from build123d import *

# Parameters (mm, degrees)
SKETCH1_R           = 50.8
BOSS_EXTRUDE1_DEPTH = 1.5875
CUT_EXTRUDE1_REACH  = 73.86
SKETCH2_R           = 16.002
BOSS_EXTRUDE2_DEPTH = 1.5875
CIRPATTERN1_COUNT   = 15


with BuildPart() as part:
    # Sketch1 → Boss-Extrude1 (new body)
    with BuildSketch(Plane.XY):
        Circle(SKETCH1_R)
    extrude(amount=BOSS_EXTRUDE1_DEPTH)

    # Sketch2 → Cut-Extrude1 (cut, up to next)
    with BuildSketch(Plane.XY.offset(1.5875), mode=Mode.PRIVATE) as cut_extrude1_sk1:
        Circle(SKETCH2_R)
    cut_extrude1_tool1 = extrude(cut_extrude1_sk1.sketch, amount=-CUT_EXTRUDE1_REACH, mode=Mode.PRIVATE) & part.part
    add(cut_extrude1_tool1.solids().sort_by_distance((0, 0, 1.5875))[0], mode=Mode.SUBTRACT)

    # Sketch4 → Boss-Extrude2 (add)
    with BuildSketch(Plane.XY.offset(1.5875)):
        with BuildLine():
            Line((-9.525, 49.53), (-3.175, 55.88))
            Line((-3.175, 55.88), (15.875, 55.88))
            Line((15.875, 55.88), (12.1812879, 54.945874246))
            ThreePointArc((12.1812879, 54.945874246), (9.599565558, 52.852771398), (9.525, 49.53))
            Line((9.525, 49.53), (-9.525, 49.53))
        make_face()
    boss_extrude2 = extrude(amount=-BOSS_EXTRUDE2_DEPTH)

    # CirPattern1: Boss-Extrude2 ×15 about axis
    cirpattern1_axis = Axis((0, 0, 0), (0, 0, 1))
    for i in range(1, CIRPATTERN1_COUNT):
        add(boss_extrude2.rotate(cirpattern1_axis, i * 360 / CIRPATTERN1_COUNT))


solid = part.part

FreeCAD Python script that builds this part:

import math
import FreeCAD as App
import Part
import Sketcher

V = App.Vector
Q = App.Units.Quantity

doc = App.newDocument("Part")
body = doc.addObject("PartDesign::Body", "Body")

# Sketch on XY plane
sketch1 = doc.addObject("Sketcher::SketchObject", "Sketch")
body.addObject(sketch1)
sketch1.AttachmentSupport = (doc.XY_Plane, [""])
sketch1.MapMode = "FlatFace"
sketch1.addGeometry(Part.Circle(V(0, 0, 0), V(0, 0, 1), 51), False)
sketch1.addConstraint([
    Sketcher.Constraint("Coincident", 0, 3, -1, 1),
    Sketcher.Constraint("Diameter", 0, Q("4 in")),
])
pad1 = doc.addObject("PartDesign::Pad", "Pad")
body.addObject(pad1)
pad1.Profile = sketch1
pad1.Length = Q("0.0625 in")

# Sketch on XY plane
sketch2 = doc.addObject("Sketcher::SketchObject", "Sketch001")
body.addObject(sketch2)
sketch2.AttachmentSupport = (doc.XY_Plane, [""])
sketch2.MapMode = "FlatFace"
sketch2.AttachmentOffset = App.Placement(V(0, 0, 0.0625 * 25.4), App.Rotation())
sketch2.addGeometry(Part.Circle(V(0, 0, 0), V(0, 0, 1), 16), False)
sketch2.addConstraint([
    Sketcher.Constraint("Coincident", 0, 3, -1, 1),
    Sketcher.Constraint("Diameter", 0, Q("1.26 in")),
])
pocket1 = doc.addObject("PartDesign::Pocket", "Pocket")
body.addObject(pocket1)
pocket1.Profile = sketch2
pocket1.Type = "UpToFirst"

# Sketch on XY plane
sketch3 = doc.addObject("Sketcher::SketchObject", "Sketch002")
body.addObject(sketch3)
sketch3.AttachmentSupport = (doc.XY_Plane, [""])
sketch3.MapMode = "FlatFace"
sketch3.AttachmentOffset = App.Placement(V(0, 0, 0.0625 * 25.4), App.Rotation())
sketch3.addGeometry([
    Part.LineSegment(V(-3.2, 55.9, 0), V(-9.5, 49.5, 0)),  # 0
    Part.LineSegment(V(-9.5, 49.5, 0), V(9.5, 49.5, 0)),  # 1
    Part.ArcOfCircle(Part.Circle(V(13.2, 51.1, 0), V(0, 0, 1), 4), math.radians(104), math.radians(204)),  # 2
    Part.LineSegment(V(12.2, 54.9, 0), V(15.9, 55.9, 0)),  # 3
    Part.LineSegment(V(15.9, 55.9, 0), V(-3.2, 55.9, 0)),  # 4
], False)
sketch3.addConstraint([
    Sketcher.Constraint("Coincident", 0, 2, 1, 1),
    Sketcher.Constraint("Coincident", 1, 2, 2, 2),
    Sketcher.Constraint("Tangent", 2, 1, 3, 1),
    Sketcher.Constraint("Coincident", 3, 2, 4, 1),
    Sketcher.Constraint("Coincident", 4, 2, 0, 1),
    Sketcher.Constraint("Horizontal", 1),
    Sketcher.Constraint("Horizontal", 4),
    Sketcher.Constraint("Equal", 1, 4),
    Sketcher.Constraint("Angle", 0, Q("-135 deg")),
    Sketcher.Constraint("DistanceX", 0, 2, 3, 2, Q("1 in")),
    Sketcher.Constraint("DistanceX", 1, 1, 1, 2, Q("0.75 in")),
    Sketcher.Constraint("DistanceY", -1, 1, 3, 2, Q("2.2 in")),
    Sketcher.Constraint("Distance", 3, Q("0.15 in")),
    Sketcher.Constraint("DistanceX", 0, 2, -1, 1, Q("0.375 in")),
    Sketcher.Constraint("Radius", 2, Q("3.955762 mm")),
])
pad2 = doc.addObject("PartDesign::Pad", "Pad001")
body.addObject(pad2)
pad2.Profile = sketch3
pad2.Length = Q("0.0625 in")
pad2.Reversed = True
doc.recompute()

polarpattern = doc.addObject("PartDesign::PolarPattern", "PolarPattern")
body.addObject(polarpattern)
polarpattern.Originals = [pad2]
polarpattern.Axis = (doc.Z_Axis, [""])
polarpattern.Angle = 360
polarpattern.Occurrences = 15
body.Tip = polarpattern

doc.recompute()
